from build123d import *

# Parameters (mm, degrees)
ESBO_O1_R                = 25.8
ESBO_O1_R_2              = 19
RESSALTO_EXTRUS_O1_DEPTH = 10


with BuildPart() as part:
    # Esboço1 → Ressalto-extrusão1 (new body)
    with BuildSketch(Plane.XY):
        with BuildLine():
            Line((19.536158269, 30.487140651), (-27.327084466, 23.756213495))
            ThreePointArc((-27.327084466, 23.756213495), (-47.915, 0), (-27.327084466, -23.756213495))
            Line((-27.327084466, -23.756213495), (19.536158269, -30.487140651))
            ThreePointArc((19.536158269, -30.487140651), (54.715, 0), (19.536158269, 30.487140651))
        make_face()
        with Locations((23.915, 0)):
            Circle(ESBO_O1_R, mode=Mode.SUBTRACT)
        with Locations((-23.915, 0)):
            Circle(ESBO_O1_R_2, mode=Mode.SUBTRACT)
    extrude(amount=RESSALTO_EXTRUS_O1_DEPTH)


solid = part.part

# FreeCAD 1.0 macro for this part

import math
import FreeCAD as App
import Part
import Sketcher

doc = App.newDocument("Part")
body = doc.addObject("PartDesign::Body", "Body")

# Sketch on XY plane
sketch1 = doc.addObject("Sketcher::SketchObject", "Sketch")
body.addObject(sketch1)
sketch1.AttachmentSupport = (doc.XY_Plane, [""])
sketch1.MapMode = "FlatFace"
sketch1.addGeometry([
    Part.LineSegment(App.Vector(19.536158, 30.487141, 0), App.Vector(-27.327084, 23.756213, 0)),  # 0
    Part.ArcOfCircle(Part.Circle(App.Vector(-23.915, 0, 0), App.Vector(0, 0, 1), 24), math.radians(98.173445), math.radians(261.826555)),  # 1
    Part.LineSegment(App.Vector(-27.327084, -23.756213, 0), App.Vector(19.536158, -30.487141, 0)),  # 2
    Part.ArcOfCircle(Part.Circle(App.Vector(23.915, 0, 0), App.Vector(0, 0, 1), 30.8), math.radians(-98.173445), math.radians(98.173445)),  # 3
    Part.Circle(App.Vector(-23.915, 0, 0), App.Vector(0, 0, 1), 19),  # 4
    Part.Circle(App.Vector(23.915, 0, 0), App.Vector(0, 0, 1), 25.8),  # 5
], False)
sketch1.addConstraint([
    Sketcher.Constraint("Tangent", 0, 2, 1, 1),
    Sketcher.Constraint("Tangent", 1, 2, 2, 1),
    Sketcher.Constraint("Tangent", 2, 2, 3, 1),
    Sketcher.Constraint("Tangent", 3, 2, 0, 1),
    Sketcher.Constraint("Coincident", 4, 3, 1, 3),
    Sketcher.Constraint("Coincident", 5, 3, 3, 3),
    Sketcher.Constraint("Symmetric", 1, 3, 3, 3, -1, 1),
    Sketcher.Constraint("PointOnObject", 1, 3, -1),
    Sketcher.Constraint("Diameter", 4, 38.0),
    Sketcher.Constraint("Radius", 1, 24.0),
    Sketcher.Constraint("Diameter", 5, 51.6),
    Sketcher.Constraint("Radius", 3, 30.8),
    Sketcher.Constraint("DistanceX", 1, 3, 3, 3, 47.83),
])
pad1 = doc.addObject("PartDesign::Pad", "Pad")
body.addObject(pad1)
pad1.Profile = sketch1
pad1.Length = 10

doc.recompute()
